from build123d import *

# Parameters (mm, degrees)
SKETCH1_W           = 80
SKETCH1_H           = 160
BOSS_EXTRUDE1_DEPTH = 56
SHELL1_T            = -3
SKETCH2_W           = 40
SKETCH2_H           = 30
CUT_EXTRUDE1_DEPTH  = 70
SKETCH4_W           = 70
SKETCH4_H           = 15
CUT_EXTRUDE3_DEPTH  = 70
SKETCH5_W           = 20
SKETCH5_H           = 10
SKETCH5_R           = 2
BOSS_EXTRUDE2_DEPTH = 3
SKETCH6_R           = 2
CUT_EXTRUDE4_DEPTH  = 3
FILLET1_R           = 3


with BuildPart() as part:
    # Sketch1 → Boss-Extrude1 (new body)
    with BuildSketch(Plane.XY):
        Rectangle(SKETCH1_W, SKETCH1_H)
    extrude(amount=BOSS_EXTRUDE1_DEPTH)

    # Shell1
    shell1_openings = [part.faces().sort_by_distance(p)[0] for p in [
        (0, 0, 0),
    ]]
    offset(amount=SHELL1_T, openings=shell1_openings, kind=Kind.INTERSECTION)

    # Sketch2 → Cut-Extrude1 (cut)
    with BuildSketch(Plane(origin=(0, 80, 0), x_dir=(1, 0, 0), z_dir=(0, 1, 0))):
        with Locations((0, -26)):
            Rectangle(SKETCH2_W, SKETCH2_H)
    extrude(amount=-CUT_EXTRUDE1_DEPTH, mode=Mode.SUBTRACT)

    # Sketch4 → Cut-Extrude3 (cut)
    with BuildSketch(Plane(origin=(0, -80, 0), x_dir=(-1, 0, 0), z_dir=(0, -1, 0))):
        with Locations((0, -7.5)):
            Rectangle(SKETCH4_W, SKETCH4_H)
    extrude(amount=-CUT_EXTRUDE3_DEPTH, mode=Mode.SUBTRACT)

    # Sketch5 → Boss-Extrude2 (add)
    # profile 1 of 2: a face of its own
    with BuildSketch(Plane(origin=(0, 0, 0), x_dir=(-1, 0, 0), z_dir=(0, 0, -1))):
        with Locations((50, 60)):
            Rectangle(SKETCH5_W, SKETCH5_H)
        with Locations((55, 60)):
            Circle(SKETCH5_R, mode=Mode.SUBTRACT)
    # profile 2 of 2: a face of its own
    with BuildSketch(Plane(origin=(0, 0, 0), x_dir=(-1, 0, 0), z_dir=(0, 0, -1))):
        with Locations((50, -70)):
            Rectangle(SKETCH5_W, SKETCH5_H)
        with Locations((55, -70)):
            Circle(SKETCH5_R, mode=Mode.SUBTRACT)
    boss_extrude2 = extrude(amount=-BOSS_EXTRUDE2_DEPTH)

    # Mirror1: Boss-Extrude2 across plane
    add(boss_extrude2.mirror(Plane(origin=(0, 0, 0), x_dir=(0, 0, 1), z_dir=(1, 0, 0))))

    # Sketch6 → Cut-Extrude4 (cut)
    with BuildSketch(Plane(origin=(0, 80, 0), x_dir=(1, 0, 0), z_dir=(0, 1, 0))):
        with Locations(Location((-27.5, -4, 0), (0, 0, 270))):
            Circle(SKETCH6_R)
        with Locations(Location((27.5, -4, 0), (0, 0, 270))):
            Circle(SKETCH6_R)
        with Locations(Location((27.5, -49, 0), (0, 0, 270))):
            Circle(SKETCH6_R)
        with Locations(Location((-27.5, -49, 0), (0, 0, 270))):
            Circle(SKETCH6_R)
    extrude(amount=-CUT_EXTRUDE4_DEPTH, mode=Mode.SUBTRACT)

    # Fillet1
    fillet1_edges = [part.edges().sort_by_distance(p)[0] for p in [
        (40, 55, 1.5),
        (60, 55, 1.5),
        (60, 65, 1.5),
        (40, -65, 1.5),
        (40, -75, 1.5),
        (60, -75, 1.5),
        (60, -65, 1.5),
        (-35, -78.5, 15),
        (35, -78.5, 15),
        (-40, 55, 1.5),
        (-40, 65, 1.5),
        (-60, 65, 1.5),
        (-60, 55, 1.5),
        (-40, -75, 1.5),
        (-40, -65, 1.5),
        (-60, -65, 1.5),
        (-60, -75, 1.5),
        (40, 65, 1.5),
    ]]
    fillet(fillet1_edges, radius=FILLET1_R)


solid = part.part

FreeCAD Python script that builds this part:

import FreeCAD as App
import Part
import Sketcher


def edges_at(feature, points):
    """Names of the edges that pass closest to the given points."""
    edges = feature.Shape.Edges
    near = lambda p: min(range(len(edges)), key=lambda i: edges[i].distToShape(Part.Vertex(*p))[0])
    return sorted({f"Edge{near(p) + 1}" for p in points})


def faces_at(feature, points):
    """Names of the faces that lie closest to the given points."""
    faces = feature.Shape.Faces
    near = lambda p: min(range(len(faces)), key=lambda i: faces[i].distToShape(Part.Vertex(*p))[0])
    return sorted({f"Face{near(p) + 1}" for p in points})


def add_polygon(sketch, points):
    """Adds a closed chain of lines whose ends are joined by coincident constraints."""
    first, n = sketch.GeometryCount, len(points)
    for a, b in zip(points, points[1:] + points[:1]):
        sketch.addGeometry(Part.LineSegment(App.Vector(*a, 0), App.Vector(*b, 0)), False)
    for i in range(n):
        sketch.addConstraint(Sketcher.Constraint("Coincident", first + i, 2, first + (i + 1) % n, 1))

doc = App.newDocument("Part")
params = doc.addObject("Spreadsheet::Sheet", "Params")
for row, (alias, value) in enumerate([
    ("sketch1_width", "80 mm"),
    ("sketch1_height", "160 mm"),
    ("pad1_length", "56 mm"),
    ("thickness_wall", "3 mm"),
    ("sketch2_width", "40 mm"),
    ("sketch2_height", "30 mm"),
    ("pocket1_length", "70 mm"),
    ("sketch3_width", "70 mm"),
    ("sketch3_height", "15 mm"),
    ("pocket2_length", "70 mm"),
    ("sketch4_diameter", "4 mm"),
    ("sketch4_width", "20 mm"),
    ("sketch4_height", "10 mm"),
    ("pad2_length", "3 mm"),
    ("sketch5_diameter", "4 mm"),
    ("pocket3_length", "3 mm"),
    ("fillet_radius", "3 mm"),
], start=1):
    params.set(f"A{row}", alias)
    params.set(f"B{row}", "=" + value)
    params.setAlias(f"B{row}", alias)

body = doc.addObject("PartDesign::Body", "Body")

sketch1 = body.newObject("Sketcher::SketchObject", "Sketch")
sketch1.AttachmentSupport = (doc.getObject("XY_Plane"), [""])
sketch1.MapMode = "FlatFace"
add_polygon(sketch1, [(-40, 80), (-40, -80), (40, -80), (40, 80)])
sketch1.addConstraint(Sketcher.Constraint("Vertical", 0))
sketch1.addConstraint(Sketcher.Constraint("Horizontal", 1))
sketch1.addConstraint(Sketcher.Constraint("Vertical", 2))
sketch1.addConstraint(Sketcher.Constraint("Horizontal", 3))
sketch1.addConstraint(Sketcher.Constraint("Symmetric", 0, 2, 2, 2, -1, 1))
sketch1.addConstraint(Sketcher.Constraint("DistanceX", 1, 1, 1, 2, 80.0))
sketch1.addConstraint(Sketcher.Constraint("DistanceY", 0, 2, 0, 1, 160.0))
sketch1.setExpression("Constraints[9]", "Params.sketch1_width")
sketch1.setExpression("Constraints[10]", "Params.sketch1_height")
pad1 = body.newObject("PartDesign::Pad", "Pad")
pad1.Profile = sketch1
pad1.setExpression("Length", "Params.pad1_length")
doc.recompute()

thickness = body.newObject("PartDesign::Thickness", "Thickness")
thickness.Base = (pad1, faces_at(pad1, [(0, 0, 0)]))
thickness.setExpression("Value", "Params.thickness_wall")
thickness.Reversed = True
thickness.Join = "Intersection"

sketch2 = body.newObject("Sketcher::SketchObject", "Sketch001")
sketch2.AttachmentSupport = (doc.getObject("XZ_Plane"), [""])
sketch2.MapMode = "FlatFace"
sketch2.AttachmentOffset = App.Placement(App.Vector(0, 0, -80), App.Rotation())
add_polygon(sketch2, [(-20, 11), (-20, 41), (20, 41), (20, 11)])
sketch2.addConstraint(Sketcher.Constraint("Vertical", 0))
sketch2.addConstraint(Sketcher.Constraint("Horizontal", 1))
sketch2.addConstraint(Sketcher.Constraint("Vertical", 2))
sketch2.addConstraint(Sketcher.Constraint("Horizontal", 3))
sketch2.addConstraint(Sketcher.Constraint("DistanceX", 1, 1, 1, 2, 40.0))
sketch2.addConstraint(Sketcher.Constraint("DistanceY", 0, 1, 0, 2, 30.0))
sketch2.addConstraint(Sketcher.Constraint("DistanceX", 0, 2, -1, 1, 20.0))
sketch2.addConstraint(Sketcher.Constraint("DistanceY", -1, 1, 0, 2, 41.0))
sketch2.setExpression("Constraints[8]", "Params.sketch2_width")
sketch2.setExpression("Constraints[9]", "Params.sketch2_height")
pocket1 = body.newObject("PartDesign::Pocket", "Pocket")
pocket1.Profile = sketch2
pocket1.setExpression("Length", "Params.pocket1_length")
pocket1.Reversed = True

sketch3 = body.newObject("Sketcher::SketchObject", "Sketch002")
sketch3.AttachmentSupport = (doc.getObject("XZ_Plane"), [""])
sketch3.MapMode = "FlatFace"
sketch3.AttachmentOffset = App.Placement(App.Vector(0, 0, 80), App.Rotation())
add_polygon(sketch3, [(35, 0), (35, 15), (-35, 15), (-35, 0)])
sketch3.addConstraint(Sketcher.Constraint("Vertical", 0))
sketch3.addConstraint(Sketcher.Constraint("Horizontal", 1))
sketch3.addConstraint(Sketcher.Constraint("Vertical", 2))
sketch3.addConstraint(Sketcher.Constraint("Horizontal", 3))
sketch3.addConstraint(Sketcher.Constraint("Symmetric", 2, 2, 3, 2, -1, 1))
sketch3.addConstraint(Sketcher.Constraint("DistanceX", 1, 2, 1, 1, 70.0))
sketch3.addConstraint(Sketcher.Constraint("DistanceY", 0, 1, 0, 2, 15.0))
sketch3.setExpression("Constraints[9]", "Params.sketch3_width")
sketch3.setExpression("Constraints[10]", "Params.sketch3_height")
pocket2 = body.newObject("PartDesign::Pocket", "Pocket001")
pocket2.Profile = sketch3
pocket2.setExpression("Length", "Params.pocket2_length")

sketch4 = body.newObject("Sketcher::SketchObject", "Sketch003")
sketch4.AttachmentSupport = (doc.getObject("XY_Plane"), [""])
sketch4.MapMode = "FlatFace"
add_polygon(sketch4, [(-40, 65), (-40, 55), (-60, 55), (-60, 65)])
sketch4.addGeometry(Part.Circle(App.Vector(-55, 60, 0), App.Vector(0, 0, 1), 2), False)
add_polygon(sketch4, [(-40, -65), (-40, -75), (-60, -75), (-60, -65)])
sketch4.addGeometry(Part.Circle(App.Vector(-55, -70, 0), App.Vector(0, 0, 1), 2), False)
sketch4.addConstraint(Sketcher.Constraint("Vertical", 0))
sketch4.addConstraint(Sketcher.Constraint("Horizontal", 1))
sketch4.addConstraint(Sketcher.Constraint("Vertical", 2))
sketch4.addConstraint(Sketcher.Constraint("Horizontal", 3))
sketch4.addConstraint(Sketcher.Constraint("Vertical", 5))
sketch4.addConstraint(Sketcher.Constraint("Horizontal", 6))
sketch4.addConstraint(Sketcher.Constraint("Vertical", 7))
sketch4.addConstraint(Sketcher.Constraint("Horizontal", 8))
sketch4.addConstraint(Sketcher.Constraint("Equal", 4, 9))
sketch4.addConstraint(Sketcher.Constraint("Symmetric", 2, 2, 7, 2, -1))
sketch4.addConstraint(Sketcher.Constraint("Vertical", 4, 3, 9, 3))
sketch4.addConstraint(Sketcher.Constraint("Vertical", 3, 2, 5, 2))
sketch4.addConstraint(Sketcher.Constraint("Equal", 2, 5))
sketch4.addConstraint(Sketcher.Constraint("Diameter", 4, 4.0))
sketch4.addConstraint(Sketcher.Constraint("DistanceX", 1, 2, 1, 1, 20.0))
sketch4.addConstraint(Sketcher.Constraint("DistanceY", 0, 2, 0, 1, 10.0))
sketch4.addConstraint(Sketcher.Constraint("DistanceX", 4, 3, -1, 1, 55.0))
sketch4.addConstraint(Sketcher.Constraint("DistanceY", -1, 1, 4, 3, 60.0))
sketch4.addConstraint(Sketcher.Constraint("DistanceY", 9, 3, -1, 1, 70.0))
sketch4.addConstraint(Sketcher.Constraint("DistanceX", 0, 2, -1, 1, 40.0))
sketch4.addConstraint(Sketcher.Constraint("DistanceY", -1, 1, 0, 2, 55.0))
sketch4.setExpression("Constraints[21]", "Params.sketch4_diameter")
sketch4.setExpression("Constraints[22]", "Params.sketch4_width")
sketch4.setExpression("Constraints[23]", "Params.sketch4_height")
pad2 = body.newObject("PartDesign::Pad", "Pad001")
pad2.Profile = sketch4
pad2.setExpression("Length", "Params.pad2_length")
doc.recompute()

mirrored = body.newObject("PartDesign::Mirrored", "Mirrored")
mirrored.Originals = [pad2]
mirrored.MirrorPlane = (doc.getObject("YZ_Plane"), [""])
body.Tip = mirrored

sketch5 = body.newObject("Sketcher::SketchObject", "Sketch004")
sketch5.AttachmentSupport = (doc.getObject("XZ_Plane"), [""])
sketch5.MapMode = "FlatFace"
sketch5.AttachmentOffset = App.Placement(App.Vector(0, 0, -80), App.Rotation())
sketch5.addGeometry(Part.Circle(App.Vector(-27.5, 4, 0), App.Vector(0, 0, 1), 2), False)
sketch5.addGeometry(Part.Circle(App.Vector(27.5, 4, 0), App.Vector(0, 0, 1), 2), False)
sketch5.addGeometry(Part.Circle(App.Vector(27.5, 49, 0), App.Vector(0, 0, 1), 2), False)
sketch5.addGeometry(Part.Circle(App.Vector(-27.5, 49, 0), App.Vector(0, 0, 1), 2), False)
sketch5.addConstraint(Sketcher.Constraint("Equal", 0, 1))
sketch5.addConstraint(Sketcher.Constraint("Equal", 1, 2))
sketch5.addConstraint(Sketcher.Constraint("Equal", 2, 3))
sketch5.addConstraint(Sketcher.Constraint("Symmetric", 0, 3, 1, 3, -2))
sketch5.addConstraint(Sketcher.Constraint("Symmetric", 2, 3, 3, 3, -2))
sketch5.addConstraint(Sketcher.Constraint("Vertical", 1, 3, 2, 3))
sketch5.addConstraint(Sketcher.Constraint("Diameter", 0, 4.0))
sketch5.addConstraint(Sketcher.Constraint("DistanceY", -1, 1, 0, 3, 4.0))
sketch5.addConstraint(Sketcher.Constraint("DistanceY", -1, 1, 2, 3, 49.0))
sketch5.addConstraint(Sketcher.Constraint("DistanceX", 0, 3, 1, 3, 55.0))
sketch5.setExpression("Constraints[6]", "Params.sketch5_diameter")
pocket3 = body.newObject("PartDesign::Pocket", "Pocket002")
pocket3.Profile = sketch5
pocket3.setExpression("Length", "Params.pocket3_length")
pocket3.Reversed = True
doc.recompute()

fillet = body.newObject("PartDesign::Fillet", "Fillet")
fillet.Base = (pocket3, edges_at(pocket3, [
    (40, 55, 1.5),
    (60, 55, 1.5),
    (60, 65, 1.5),
    (40, -65, 1.5),
    (40, -75, 1.5),
    (60, -75, 1.5),
    (60, -65, 1.5),
    (-35, -78.5, 15),
    (35, -78.5, 15),
    (-40, 55, 1.5),
    (-40, 65, 1.5),
    (-60, 65, 1.5),
    (-60, 55, 1.5),
    (-40, -75, 1.5),
    (-40, -65, 1.5),
    (-60, -65, 1.5),
    (-60, -75, 1.5),
    (40, 65, 1.5),
]))
fillet.setExpression("Radius", "Params.fillet_radius")

doc.recompute()
